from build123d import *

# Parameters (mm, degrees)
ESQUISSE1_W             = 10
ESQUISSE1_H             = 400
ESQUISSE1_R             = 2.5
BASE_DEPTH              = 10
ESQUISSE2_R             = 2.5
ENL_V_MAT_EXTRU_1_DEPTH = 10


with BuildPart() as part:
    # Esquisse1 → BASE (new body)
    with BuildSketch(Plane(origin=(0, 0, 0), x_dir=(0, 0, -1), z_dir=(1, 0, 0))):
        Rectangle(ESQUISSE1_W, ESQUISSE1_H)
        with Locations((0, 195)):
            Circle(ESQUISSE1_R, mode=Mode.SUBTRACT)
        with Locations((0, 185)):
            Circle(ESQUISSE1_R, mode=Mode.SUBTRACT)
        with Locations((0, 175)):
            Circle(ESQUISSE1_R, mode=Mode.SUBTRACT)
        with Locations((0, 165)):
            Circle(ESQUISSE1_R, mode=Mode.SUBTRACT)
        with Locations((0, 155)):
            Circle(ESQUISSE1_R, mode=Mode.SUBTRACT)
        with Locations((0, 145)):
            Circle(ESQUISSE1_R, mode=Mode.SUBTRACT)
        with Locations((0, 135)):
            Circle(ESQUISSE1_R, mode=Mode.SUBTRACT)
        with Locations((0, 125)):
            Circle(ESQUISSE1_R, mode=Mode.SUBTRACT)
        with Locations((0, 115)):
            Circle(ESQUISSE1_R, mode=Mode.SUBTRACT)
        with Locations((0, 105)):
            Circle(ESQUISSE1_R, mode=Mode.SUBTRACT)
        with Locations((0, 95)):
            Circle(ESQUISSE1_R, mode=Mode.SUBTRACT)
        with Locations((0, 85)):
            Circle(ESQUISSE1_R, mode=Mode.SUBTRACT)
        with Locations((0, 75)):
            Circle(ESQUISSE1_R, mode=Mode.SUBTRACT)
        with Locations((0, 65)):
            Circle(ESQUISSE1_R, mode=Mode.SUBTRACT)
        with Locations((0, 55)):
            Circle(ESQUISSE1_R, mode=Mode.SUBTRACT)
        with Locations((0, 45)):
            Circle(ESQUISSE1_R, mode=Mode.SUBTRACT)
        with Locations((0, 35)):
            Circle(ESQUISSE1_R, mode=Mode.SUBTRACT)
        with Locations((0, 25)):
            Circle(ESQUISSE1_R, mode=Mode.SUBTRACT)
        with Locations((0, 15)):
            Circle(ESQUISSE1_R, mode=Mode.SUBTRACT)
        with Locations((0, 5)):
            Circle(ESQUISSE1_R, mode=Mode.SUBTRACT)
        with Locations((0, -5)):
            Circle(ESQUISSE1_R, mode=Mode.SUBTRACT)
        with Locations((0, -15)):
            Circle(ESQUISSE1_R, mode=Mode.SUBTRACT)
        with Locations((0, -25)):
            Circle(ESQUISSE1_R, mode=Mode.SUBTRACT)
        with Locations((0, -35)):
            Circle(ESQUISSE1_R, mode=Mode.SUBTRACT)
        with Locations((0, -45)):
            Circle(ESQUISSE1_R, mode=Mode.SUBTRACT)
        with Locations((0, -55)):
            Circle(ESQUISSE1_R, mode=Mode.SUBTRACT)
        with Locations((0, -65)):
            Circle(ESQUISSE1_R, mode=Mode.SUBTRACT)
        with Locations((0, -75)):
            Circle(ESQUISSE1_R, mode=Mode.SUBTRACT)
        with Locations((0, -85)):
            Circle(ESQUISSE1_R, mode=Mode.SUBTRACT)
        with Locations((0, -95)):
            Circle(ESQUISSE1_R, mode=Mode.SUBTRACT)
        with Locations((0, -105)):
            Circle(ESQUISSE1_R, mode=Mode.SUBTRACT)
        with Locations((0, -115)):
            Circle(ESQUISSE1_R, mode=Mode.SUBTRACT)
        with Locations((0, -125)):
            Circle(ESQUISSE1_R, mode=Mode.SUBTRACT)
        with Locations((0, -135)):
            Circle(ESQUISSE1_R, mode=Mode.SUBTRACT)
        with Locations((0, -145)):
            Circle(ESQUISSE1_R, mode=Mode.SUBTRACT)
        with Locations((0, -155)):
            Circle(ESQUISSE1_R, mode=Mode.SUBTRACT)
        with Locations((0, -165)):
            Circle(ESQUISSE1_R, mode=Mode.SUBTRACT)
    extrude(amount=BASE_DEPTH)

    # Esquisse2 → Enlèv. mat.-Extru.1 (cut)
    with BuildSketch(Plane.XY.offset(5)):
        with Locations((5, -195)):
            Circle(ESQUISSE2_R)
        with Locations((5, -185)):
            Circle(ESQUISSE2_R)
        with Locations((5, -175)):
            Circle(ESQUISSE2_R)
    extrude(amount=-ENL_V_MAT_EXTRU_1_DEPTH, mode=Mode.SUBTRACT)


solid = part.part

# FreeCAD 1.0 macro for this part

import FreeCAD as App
import Part
import Sketcher
Q = App.Units.Quantity


def add_polygon(sketch, points):
    """Adds a closed chain of lines whose ends are joined by coincident constraints."""
    first, n = sketch.GeometryCount, len(points)
    for a, b in zip(points, points[1:] + points[:1]):
        sketch.addGeometry(Part.LineSegment(App.Vector(*a, 0), App.Vector(*b, 0)), False)
    for i in range(n):
        sketch.addConstraint(Sketcher.Constraint("Coincident", first + i, 2, first + (i + 1) % n, 1))

doc = App.newDocument("Part")
body = doc.addObject("PartDesign::Body", "Body")

sketch1 = body.newObject("Sketcher::SketchObject", "Sketch")
sketch1.AttachmentSupport = (doc.getObject("YZ_Plane"), [""])
sketch1.MapMode = "FlatFace"
add_polygon(sketch1, [(200, 5), (-200, 5), (-200, -5), (200, -5)])
sketch1.addGeometry(Part.Circle(App.Vector(-165, 0, 0), App.Vector(0, 0, 1), 2.5), False)
sketch1.addGeometry(Part.Circle(App.Vector(-155, 0, 0), App.Vector(0, 0, 1), 2.5), False)
sketch1.addGeometry(Part.Circle(App.Vector(-145, 0, 0), App.Vector(0, 0, 1), 2.5), False)
sketch1.addGeometry(Part.Circle(App.Vector(-135, 0, 0), App.Vector(0, 0, 1), 2.5), False)
sketch1.addGeometry(Part.Circle(App.Vector(-125, 0, 0), App.Vector(0, 0, 1), 2.5), False)
sketch1.addGeometry(Part.Circle(App.Vector(-115, 0, 0), App.Vector(0, 0, 1), 2.5), False)
sketch1.addGeometry(Part.Circle(App.Vector(-105, 0, 0), App.Vector(0, 0, 1), 2.5), False)
sketch1.addGeometry(Part.Circle(App.Vector(-95, 0, 0), App.Vector(0, 0, 1), 2.5), False)
sketch1.addGeometry(Part.Circle(App.Vector(-85, 0, 0), App.Vector(0, 0, 1), 2.5), False)
sketch1.addGeometry(Part.Circle(App.Vector(-75, 0, 0), App.Vector(0, 0, 1), 2.5), False)
sketch1.addGeometry(Part.Circle(App.Vector(-65, 0, 0), App.Vector(0, 0, 1), 2.5), False)
sketch1.addGeometry(Part.Circle(App.Vector(-55, 0, 0), App.Vector(0, 0, 1), 2.5), False)
sketch1.addGeometry(Part.Circle(App.Vector(-45, 0, 0), App.Vector(0, 0, 1), 2.5), False)
sketch1.addGeometry(Part.Circle(App.Vector(-35, 0, 0), App.Vector(0, 0, 1), 2.5), False)
sketch1.addGeometry(Part.Circle(App.Vector(-25, 0, 0), App.Vector(0, 0, 1), 2.5), False)
sketch1.addGeometry(Part.Circle(App.Vector(-15, 0, 0), App.Vector(0, 0, 1), 2.5), False)
sketch1.addGeometry(Part.Circle(App.Vector(-5, 0, 0), App.Vector(0, 0, 1), 2.5), False)
sketch1.addGeometry(Part.Circle(App.Vector(5, 0, 0), App.Vector(0, 0, 1), 2.5), False)
sketch1.addGeometry(Part.Circle(App.Vector(15, 0, 0), App.Vector(0, 0, 1), 2.5), False)
sketch1.addGeometry(Part.Circle(App.Vector(25, 0, 0), App.Vector(0, 0, 1), 2.5), False)
sketch1.addGeometry(Part.Circle(App.Vector(35, 0, 0), App.Vector(0, 0, 1), 2.5), False)
sketch1.addGeometry(Part.Circle(App.Vector(45, 0, 0), App.Vector(0, 0, 1), 2.5), False)
sketch1.addGeometry(Part.Circle(App.Vector(55, 0, 0), App.Vector(0, 0, 1), 2.5), False)
sketch1.addGeometry(Part.Circle(App.Vector(65, 0, 0), App.Vector(0, 0, 1), 2.5), False)
sketch1.addGeometry(Part.Circle(App.Vector(75, 0, 0), App.Vector(0, 0, 1), 2.5), False)
sketch1.addGeometry(Part.Circle(App.Vector(85, 0, 0), App.Vector(0, 0, 1), 2.5), False)
sketch1.addGeometry(Part.Circle(App.Vector(95, 0, 0), App.Vector(0, 0, 1), 2.5), False)
sketch1.addGeometry(Part.Circle(App.Vector(105, 0, 0), App.Vector(0, 0, 1), 2.5), False)
sketch1.addGeometry(Part.Circle(App.Vector(115, 0, 0), App.Vector(0, 0, 1), 2.5), False)
sketch1.addGeometry(Part.Circle(App.Vector(125, 0, 0), App.Vector(0, 0, 1), 2.5), False)
sketch1.addGeometry(Part.Circle(App.Vector(135, 0, 0), App.Vector(0, 0, 1), 2.5), False)
sketch1.addGeometry(Part.Circle(App.Vector(145, 0, 0), App.Vector(0, 0, 1), 2.5), False)
sketch1.addGeometry(Part.Circle(App.Vector(155, 0, 0), App.Vector(0, 0, 1), 2.5), False)
sketch1.addGeometry(Part.Circle(App.Vector(165, 0, 0), App.Vector(0, 0, 1), 2.5), False)
sketch1.addGeometry(Part.Circle(App.Vector(175, 0, 0), App.Vector(0, 0, 1), 2.5), False)
sketch1.addGeometry(Part.Circle(App.Vector(185, 0, 0), App.Vector(0, 0, 1), 2.5), False)
sketch1.addGeometry(Part.Circle(App.Vector(195, 0, 0), App.Vector(0, 0, 1), 2.5), False)
sketch1.addConstraint(Sketcher.Constraint("Horizontal", 0))
sketch1.addConstraint(Sketcher.Constraint("Vertical", 1))
sketch1.addConstraint(Sketcher.Constraint("Horizontal", 2))
sketch1.addConstraint(Sketcher.Constraint("Vertical", 3))
sketch1.addConstraint(Sketcher.Constraint("Equal", 4, 5))
sketch1.addConstraint(Sketcher.Constraint("Equal", 5, 6))
sketch1.addConstraint(Sketcher.Constraint("Equal", 6, 7))
sketch1.addConstraint(Sketcher.Constraint("Equal", 7, 8))
sketch1.addConstraint(Sketcher.Constraint("Equal", 8, 9))
sketch1.addConstraint(Sketcher.Constraint("Equal", 9, 10))
sketch1.addConstraint(Sketcher.Constraint("Equal", 10, 11))
sketch1.addConstraint(Sketcher.Constraint("Equal", 11, 12))
sketch1.addConstraint(Sketcher.Constraint("Equal", 12, 13))
sketch1.addConstraint(Sketcher.Constraint("Equal", 13, 14))
sketch1.addConstraint(Sketcher.Constraint("Equal", 14, 15))
sketch1.addConstraint(Sketcher.Constraint("Equal", 15, 16))
sketch1.addConstraint(Sketcher.Constraint("Equal", 16, 17))
sketch1.addConstraint(Sketcher.Constraint("Equal", 17, 18))
sketch1.addConstraint(Sketcher.Constraint("Equal", 18, 19))
sketch1.addConstraint(Sketcher.Constraint("Equal", 19, 20))
sketch1.addConstraint(Sketcher.Constraint("Equal", 20, 21))
sketch1.addConstraint(Sketcher.Constraint("Equal", 21, 22))
sketch1.addConstraint(Sketcher.Constraint("Equal", 22, 23))
sketch1.addConstraint(Sketcher.Constraint("Equal", 23, 24))
sketch1.addConstraint(Sketcher.Constraint("Equal", 24, 25))
sketch1.addConstraint(Sketcher.Constraint("Equal", 25, 26))
sketch1.addConstraint(Sketcher.Constraint("Equal", 26, 27))
sketch1.addConstraint(Sketcher.Constraint("Equal", 27, 28))
sketch1.addConstraint(Sketcher.Constraint("Equal", 28, 29))
sketch1.addConstraint(Sketcher.Constraint("Equal", 29, 30))
sketch1.addConstraint(Sketcher.Constraint("Equal", 30, 31))
sketch1.addConstraint(Sketcher.Constraint("Equal", 31, 32))
sketch1.addConstraint(Sketcher.Constraint("Equal", 32, 33))
sketch1.addConstraint(Sketcher.Constraint("Equal", 33, 34))
sketch1.addConstraint(Sketcher.Constraint("Equal", 34, 35))
sketch1.addConstraint(Sketcher.Constraint("Equal", 35, 36))
sketch1.addConstraint(Sketcher.Constraint("Equal", 36, 37))
sketch1.addConstraint(Sketcher.Constraint("Equal", 37, 38))
sketch1.addConstraint(Sketcher.Constraint("Equal", 38, 39))
sketch1.addConstraint(Sketcher.Constraint("Equal", 39, 40))
sketch1.addConstraint(Sketcher.Constraint("Symmetric", 20, 3, 21, 3, -1, 1))
sketch1.addConstraint(Sketcher.Constraint("Symmetric", 19, 3, 22, 3, -1, 1))
sketch1.addConstraint(Sketcher.Constraint("Symmetric", 18, 3, 23, 3, -1, 1))
sketch1.addConstraint(Sketcher.Constraint("Symmetric", 17, 3, 24, 3, -1, 1))
sketch1.addConstraint(Sketcher.Constraint("Symmetric", 16, 3, 25, 3, -1, 1))
sketch1.addConstraint(Sketcher.Constraint("Symmetric", 15, 3, 26, 3, -1, 1))
sketch1.addConstraint(Sketcher.Constraint("Symmetric", 14, 3, 27, 3, -1, 1))
sketch1.addConstraint(Sketcher.Constraint("Symmetric", 13, 3, 28, 3, -1, 1))
sketch1.addConstraint(Sketcher.Constraint("Symmetric", 12, 3, 29, 3, -1, 1))
sketch1.addConstraint(Sketcher.Constraint("Symmetric", 11, 3, 30, 3, -1, 1))
sketch1.addConstraint(Sketcher.Constraint("Symmetric", 10, 3, 31, 3, -1, 1))
sketch1.addConstraint(Sketcher.Constraint("Symmetric", 9, 3, 32, 3, -1, 1))
sketch1.addConstraint(Sketcher.Constraint("Symmetric", 8, 3, 33, 3, -1, 1))
sketch1.addConstraint(Sketcher.Constraint("Symmetric", 7, 3, 34, 3, -1, 1))
sketch1.addConstraint(Sketcher.Constraint("Symmetric", 6, 3, 35, 3, -1, 1))
sketch1.addConstraint(Sketcher.Constraint("Symmetric", 5, 3, 36, 3, -1, 1))
sketch1.addConstraint(Sketcher.Constraint("Symmetric", 4, 3, 37, 3, -1, 1))
sketch1.addConstraint(Sketcher.Constraint("Symmetric", 0, 2, 2, 2, -1, 1))
sketch1.addConstraint(Sketcher.Constraint("PointOnObject", 4, 3, -1))
sketch1.addConstraint(Sketcher.Constraint("PointOnObject", 5, 3, -1))
sketch1.addConstraint(Sketcher.Constraint("PointOnObject", 6, 3, -1))
sketch1.addConstraint(Sketcher.Constraint("PointOnObject", 7, 3, -1))
sketch1.addConstraint(Sketcher.Constraint("PointOnObject", 8, 3, -1))
sketch1.addConstraint(Sketcher.Constraint("PointOnObject", 9, 3, -1))
sketch1.addConstraint(Sketcher.Constraint("PointOnObject", 10, 3, -1))
sketch1.addConstraint(Sketcher.Constraint("PointOnObject", 11, 3, -1))
sketch1.addConstraint(Sketcher.Constraint("PointOnObject", 12, 3, -1))
sketch1.addConstraint(Sketcher.Constraint("PointOnObject", 13, 3, -1))
sketch1.addConstraint(Sketcher.Constraint("PointOnObject", 14, 3, -1))
sketch1.addConstraint(Sketcher.Constraint("PointOnObject", 15, 3, -1))
sketch1.addConstraint(Sketcher.Constraint("PointOnObject", 16, 3, -1))
sketch1.addConstraint(Sketcher.Constraint("PointOnObject", 17, 3, -1))
sketch1.addConstraint(Sketcher.Constraint("PointOnObject", 18, 3, -1))
sketch1.addConstraint(Sketcher.Constraint("PointOnObject", 19, 3, -1))
sketch1.addConstraint(Sketcher.Constraint("PointOnObject", 20, 3, -1))
sketch1.addConstraint(Sketcher.Constraint("PointOnObject", 38, 3, -1))
sketch1.addConstraint(Sketcher.Constraint("PointOnObject", 39, 3, -1))
sketch1.addConstraint(Sketcher.Constraint("PointOnObject", 40, 3, -1))
sketch1.addConstraint(Sketcher.Constraint("Diameter", 4, Q("5 mm")))
sketch1.addConstraint(Sketcher.Constraint("DistanceX", 0, 2, 0, 1, Q("400 mm")))
sketch1.addConstraint(Sketcher.Constraint("DistanceY", 1, 2, 1, 1, Q("10 mm")))
sketch1.addConstraint(Sketcher.Constraint("DistanceX", 4, 3, -1, 1, Q("165 mm")))
sketch1.addConstraint(Sketcher.Constraint("DistanceX", 5, 3, -1, 1, Q("155 mm")))
sketch1.addConstraint(Sketcher.Constraint("DistanceX", 6, 3, -1, 1, Q("145 mm")))
sketch1.addConstraint(Sketcher.Constraint("DistanceX", 7, 3, -1, 1, Q("135 mm")))
sketch1.addConstraint(Sketcher.Constraint("DistanceX", 8, 3, -1, 1, Q("125 mm")))
sketch1.addConstraint(Sketcher.Constraint("DistanceX", 9, 3, -1, 1, Q("115 mm")))
sketch1.addConstraint(Sketcher.Constraint("DistanceX", 10, 3, -1, 1, Q("105 mm")))
sketch1.addConstraint(Sketcher.Constraint("DistanceX", 11, 3, -1, 1, Q("95 mm")))
sketch1.addConstraint(Sketcher.Constraint("DistanceX", 12, 3, -1, 1, Q("85 mm")))
sketch1.addConstraint(Sketcher.Constraint("DistanceX", 13, 3, -1, 1, Q("75 mm")))
sketch1.addConstraint(Sketcher.Constraint("DistanceX", 14, 3, -1, 1, Q("65 mm")))
sketch1.addConstraint(Sketcher.Constraint("DistanceX", 15, 3, -1, 1, Q("55 mm")))
sketch1.addConstraint(Sketcher.Constraint("DistanceX", 16, 3, -1, 1, Q("45 mm")))
sketch1.addConstraint(Sketcher.Constraint("DistanceX", 17, 3, -1, 1, Q("35 mm")))
sketch1.addConstraint(Sketcher.Constraint("DistanceX", 18, 3, -1, 1, Q("25 mm")))
sketch1.addConstraint(Sketcher.Constraint("DistanceX", 19, 3, -1, 1, Q("15 mm")))
sketch1.addConstraint(Sketcher.Constraint("DistanceX", 20, 3, -1, 1, Q("5 mm")))
sketch1.addConstraint(Sketcher.Constraint("DistanceX", -1, 1, 38, 3, Q("175 mm")))
sketch1.addConstraint(Sketcher.Constraint("DistanceX", -1, 1, 39, 3, Q("185 mm")))
sketch1.addConstraint(Sketcher.Constraint("DistanceX", -1, 1, 40, 3, Q("195 mm")))
pad1 = body.newObject("PartDesign::Pad", "Pad")
pad1.Profile = sketch1
pad1.Length = 10

sketch2 = body.newObject("Sketcher::SketchObject", "Sketch001")
sketch2.AttachmentSupport = (doc.getObject("XY_Plane"), [""])
sketch2.MapMode = "FlatFace"
sketch2.AttachmentOffset = App.Placement(App.Vector(0, 0, 5), App.Rotation())
sketch2.addGeometry(Part.Circle(App.Vector(5, -195, 0), App.Vector(0, 0, 1), 2.5), False)
sketch2.addGeometry(Part.Circle(App.Vector(5, -185, 0), App.Vector(0, 0, 1), 2.5), False)
sketch2.addGeometry(Part.Circle(App.Vector(5, -175, 0), App.Vector(0, 0, 1), 2.5), False)
sketch2.addConstraint(Sketcher.Constraint("Equal", 0, 1))
sketch2.addConstraint(Sketcher.Constraint("Equal", 1, 2))
sketch2.addConstraint(Sketcher.Constraint("Vertical", 0, 3, 1, 3))
sketch2.addConstraint(Sketcher.Constraint("Vertical", 1, 3, 2, 3))
sketch2.addConstraint(Sketcher.Constraint("Diameter", 0, Q("5 mm")))
sketch2.addConstraint(Sketcher.Constraint("DistanceX", -1, 1, 0, 3, Q("5 mm")))
sketch2.addConstraint(Sketcher.Constraint("DistanceY", 0, 3, -1, 1, Q("195 mm")))
sketch2.addConstraint(Sketcher.Constraint("DistanceY", 1, 3, -1, 1, Q("185 mm")))
sketch2.addConstraint(Sketcher.Constraint("DistanceY", 2, 3, -1, 1, Q("175 mm")))
pocket1 = body.newObject("PartDesign::Pocket", "Pocket")
pocket1.Profile = sketch2
pocket1.Length = 10

doc.recompute()
